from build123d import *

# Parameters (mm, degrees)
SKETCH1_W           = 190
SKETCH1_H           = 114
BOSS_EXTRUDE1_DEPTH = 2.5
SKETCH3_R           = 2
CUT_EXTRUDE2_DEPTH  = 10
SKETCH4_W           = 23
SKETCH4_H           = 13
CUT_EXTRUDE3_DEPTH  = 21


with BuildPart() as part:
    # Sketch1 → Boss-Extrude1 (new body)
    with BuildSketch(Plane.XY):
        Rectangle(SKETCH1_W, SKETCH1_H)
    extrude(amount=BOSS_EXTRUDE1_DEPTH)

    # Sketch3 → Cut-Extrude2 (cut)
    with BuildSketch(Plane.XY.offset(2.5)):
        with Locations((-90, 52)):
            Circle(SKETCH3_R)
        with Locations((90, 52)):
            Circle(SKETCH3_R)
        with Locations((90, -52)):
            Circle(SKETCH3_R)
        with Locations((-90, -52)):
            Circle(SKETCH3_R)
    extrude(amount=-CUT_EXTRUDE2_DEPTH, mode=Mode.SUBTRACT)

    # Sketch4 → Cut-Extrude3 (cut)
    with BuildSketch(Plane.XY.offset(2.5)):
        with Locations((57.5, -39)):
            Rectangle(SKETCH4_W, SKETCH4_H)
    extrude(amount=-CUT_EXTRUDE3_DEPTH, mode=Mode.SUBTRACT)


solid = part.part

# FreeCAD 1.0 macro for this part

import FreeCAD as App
import Part
import Sketcher
from FreeCAD import Vector
Q = App.Units.Quantity


def add_polygon(sketch, points):
    """Adds a closed chain of lines whose ends are joined by coincident constraints."""
    first, n = sketch.GeometryCount, len(points)
    for a, b in zip(points, points[1:] + points[:1]):
        sketch.addGeometry(Part.LineSegment(App.Vector(*a, 0), App.Vector(*b, 0)), False)
    for i in range(n):
        sketch.addConstraint(Sketcher.Constraint("Coincident", first + i, 2, first + (i + 1) % n, 1))

doc = App.newDocument("Part")
body = doc.addObject("PartDesign::Body", "Body")

# Sketch on XY plane
sketch1 = body.newObject("Sketcher::SketchObject", "Sketch")
sketch1.AttachmentSupport = (doc.getObject("XY_Plane"), [""])
sketch1.MapMode = "FlatFace"
add_polygon(sketch1, [(-95, 57), (-95, -57), (95, -57), (95, 57)])  # lines 0-3
sketch1.addConstraint([
    Sketcher.Constraint("Vertical", 0),
    Sketcher.Constraint("Horizontal", 1),
    Sketcher.Constraint("Vertical", 2),
    Sketcher.Constraint("Horizontal", 3),
    Sketcher.Constraint("Symmetric", 0, 2, 2, 2, -1, 1),
    Sketcher.Constraint("DistanceX", 1, 1, 1, 2, Q("190 mm")),
    Sketcher.Constraint("DistanceY", 0, 2, 0, 1, Q("114 mm")),
])
pad1 = body.newObject("PartDesign::Pad", "Pad")
pad1.Profile = sketch1
pad1.Length = 2.5

# Sketch on XY plane
sketch2 = body.newObject("Sketcher::SketchObject", "Sketch001")
sketch2.AttachmentSupport = (doc.getObject("XY_Plane"), [""])
sketch2.MapMode = "FlatFace"
sketch2.AttachmentOffset = App.Placement(Vector(0, 0, 2.5), App.Rotation())
sketch2.addGeometry([
    Part.Circle(Vector(-90, 52, 0), Vector(0, 0, 1), 2),
    Part.Circle(Vector(90, 52, 0), Vector(0, 0, 1), 2),
    Part.Circle(Vector(90, -52, 0), Vector(0, 0, 1), 2),
    Part.Circle(Vector(-90, -52, 0), Vector(0, 0, 1), 2),
], False)
sketch2.addConstraint([
    Sketcher.Constraint("Equal", 0, 1),
    Sketcher.Constraint("Equal", 1, 2),
    Sketcher.Constraint("Equal", 2, 3),
    Sketcher.Constraint("Symmetric", 0, 3, 2, 3, -1, 1),
    Sketcher.Constraint("Symmetric", 1, 3, 3, 3, -1, 1),
    Sketcher.Constraint("Symmetric", 0, 3, 1, 3, -2),
    Sketcher.Constraint("Diameter", 0, Q("4 mm")),
    Sketcher.Constraint("DistanceX", 0, 3, -1, 1, Q("90 mm")),
    Sketcher.Constraint("DistanceY", -1, 1, 0, 3, Q("52 mm")),
])
pocket1 = body.newObject("PartDesign::Pocket", "Pocket")
pocket1.Profile = sketch2
pocket1.Length = 10

# Sketch on XY plane
sketch3 = body.newObject("Sketcher::SketchObject", "Sketch002")
sketch3.AttachmentSupport = (doc.getObject("XY_Plane"), [""])
sketch3.MapMode = "FlatFace"
sketch3.AttachmentOffset = App.Placement(Vector(0, 0, 2.5), App.Rotation())
add_polygon(sketch3, [(46, -32.5), (46, -45.5), (69, -45.5), (69, -32.5)])  # lines 0-3
sketch3.addConstraint([
    Sketcher.Constraint("Vertical", 0),
    Sketcher.Constraint("Horizontal", 1),
    Sketcher.Constraint("Vertical", 2),
    Sketcher.Constraint("Horizontal", 3),
    Sketcher.Constraint("DistanceX", 1, 1, 1, 2, Q("23 mm")),
    Sketcher.Constraint("DistanceY", 0, 2, 0, 1, Q("13 mm")),
    Sketcher.Constraint("DistanceX", -1, 1, 0, 2, Q("46 mm")),
    Sketcher.Constraint("DistanceY", 0, 2, -1, 1, Q("45.5 mm")),
])
pocket2 = body.newObject("PartDesign::Pocket", "Pocket001")
pocket2.Profile = sketch3
pocket2.Length = 21

doc.recompute()
